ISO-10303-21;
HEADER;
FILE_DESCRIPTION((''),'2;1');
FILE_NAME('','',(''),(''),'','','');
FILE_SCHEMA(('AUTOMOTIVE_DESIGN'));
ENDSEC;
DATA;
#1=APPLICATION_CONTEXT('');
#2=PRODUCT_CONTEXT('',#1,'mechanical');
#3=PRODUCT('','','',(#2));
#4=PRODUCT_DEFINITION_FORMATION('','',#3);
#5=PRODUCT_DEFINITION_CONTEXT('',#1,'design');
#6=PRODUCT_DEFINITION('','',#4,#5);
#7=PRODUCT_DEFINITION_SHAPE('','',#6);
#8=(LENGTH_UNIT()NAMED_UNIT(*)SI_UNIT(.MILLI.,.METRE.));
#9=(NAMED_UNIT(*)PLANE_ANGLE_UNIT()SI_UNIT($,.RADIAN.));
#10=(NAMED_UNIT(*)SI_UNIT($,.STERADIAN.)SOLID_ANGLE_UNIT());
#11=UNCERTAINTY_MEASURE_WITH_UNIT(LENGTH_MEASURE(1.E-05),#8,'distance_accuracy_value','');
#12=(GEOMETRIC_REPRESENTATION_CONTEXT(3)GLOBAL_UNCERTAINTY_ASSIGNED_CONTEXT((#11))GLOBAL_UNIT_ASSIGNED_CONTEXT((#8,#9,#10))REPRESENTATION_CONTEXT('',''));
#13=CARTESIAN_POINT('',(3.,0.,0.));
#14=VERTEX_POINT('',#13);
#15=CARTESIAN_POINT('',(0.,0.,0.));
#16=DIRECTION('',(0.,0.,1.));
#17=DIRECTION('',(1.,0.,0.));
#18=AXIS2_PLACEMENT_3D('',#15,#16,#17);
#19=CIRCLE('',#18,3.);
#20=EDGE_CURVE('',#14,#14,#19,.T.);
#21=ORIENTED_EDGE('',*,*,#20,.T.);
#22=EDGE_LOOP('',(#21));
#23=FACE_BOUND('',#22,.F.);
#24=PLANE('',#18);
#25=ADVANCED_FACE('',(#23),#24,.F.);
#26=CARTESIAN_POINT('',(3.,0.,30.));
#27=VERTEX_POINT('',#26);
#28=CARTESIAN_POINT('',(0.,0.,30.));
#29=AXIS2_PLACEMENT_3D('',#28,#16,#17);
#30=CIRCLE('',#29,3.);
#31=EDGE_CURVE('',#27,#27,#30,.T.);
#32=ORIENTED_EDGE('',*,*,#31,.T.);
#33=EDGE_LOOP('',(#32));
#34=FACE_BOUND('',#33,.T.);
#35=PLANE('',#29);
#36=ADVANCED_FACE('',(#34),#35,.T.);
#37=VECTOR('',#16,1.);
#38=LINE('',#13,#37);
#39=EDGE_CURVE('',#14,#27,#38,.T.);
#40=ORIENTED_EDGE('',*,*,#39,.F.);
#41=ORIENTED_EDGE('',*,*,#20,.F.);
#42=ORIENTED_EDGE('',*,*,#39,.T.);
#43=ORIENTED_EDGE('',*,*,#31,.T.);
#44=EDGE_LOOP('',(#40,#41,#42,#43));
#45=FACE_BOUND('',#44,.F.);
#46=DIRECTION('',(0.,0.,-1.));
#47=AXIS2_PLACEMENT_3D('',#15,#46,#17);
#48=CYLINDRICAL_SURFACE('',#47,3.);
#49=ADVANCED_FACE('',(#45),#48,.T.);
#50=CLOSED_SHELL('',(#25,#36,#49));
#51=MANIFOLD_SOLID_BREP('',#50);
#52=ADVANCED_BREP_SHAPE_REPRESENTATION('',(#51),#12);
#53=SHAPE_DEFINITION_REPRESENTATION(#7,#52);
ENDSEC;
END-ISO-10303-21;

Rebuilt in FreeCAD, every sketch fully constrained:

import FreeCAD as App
import Part
import Sketcher
Q = App.Units.Quantity

doc = App.newDocument("Part")
params = doc.addObject("Spreadsheet::Sheet", "Params")
for row, (alias, value) in enumerate([
    ("sketch1_diameter", "6 mm"),
    ("pad1_length", "30 mm"),
], start=1):
    params.set(f"A{row}", alias)
    params.set(f"B{row}", "=" + value)
    params.setAlias(f"B{row}", alias)

body = doc.addObject("PartDesign::Body", "Body")

# Sketch on XY plane
sketch1 = body.newObject("Sketcher::SketchObject", "Sketch")
sketch1.AttachmentSupport = (doc.getObject("XY_Plane"), [""])
sketch1.MapMode = "FlatFace"
sketch1.addGeometry(Part.Circle(App.Vector(0, 0, 0), App.Vector(0, 0, 1), 3), False)
sketch1.addConstraint([
    Sketcher.Constraint("Coincident", 0, 3, -1, 1),
    Sketcher.Constraint("Diameter", 0, Q("6 mm")),
])
sketch1.setExpression("Constraints[1]", "Params.sketch1_diameter")
pad1 = body.newObject("PartDesign::Pad", "Pad")
pad1.Profile = sketch1
pad1.setExpression("Length", "Params.pad1_length")

doc.recompute()
